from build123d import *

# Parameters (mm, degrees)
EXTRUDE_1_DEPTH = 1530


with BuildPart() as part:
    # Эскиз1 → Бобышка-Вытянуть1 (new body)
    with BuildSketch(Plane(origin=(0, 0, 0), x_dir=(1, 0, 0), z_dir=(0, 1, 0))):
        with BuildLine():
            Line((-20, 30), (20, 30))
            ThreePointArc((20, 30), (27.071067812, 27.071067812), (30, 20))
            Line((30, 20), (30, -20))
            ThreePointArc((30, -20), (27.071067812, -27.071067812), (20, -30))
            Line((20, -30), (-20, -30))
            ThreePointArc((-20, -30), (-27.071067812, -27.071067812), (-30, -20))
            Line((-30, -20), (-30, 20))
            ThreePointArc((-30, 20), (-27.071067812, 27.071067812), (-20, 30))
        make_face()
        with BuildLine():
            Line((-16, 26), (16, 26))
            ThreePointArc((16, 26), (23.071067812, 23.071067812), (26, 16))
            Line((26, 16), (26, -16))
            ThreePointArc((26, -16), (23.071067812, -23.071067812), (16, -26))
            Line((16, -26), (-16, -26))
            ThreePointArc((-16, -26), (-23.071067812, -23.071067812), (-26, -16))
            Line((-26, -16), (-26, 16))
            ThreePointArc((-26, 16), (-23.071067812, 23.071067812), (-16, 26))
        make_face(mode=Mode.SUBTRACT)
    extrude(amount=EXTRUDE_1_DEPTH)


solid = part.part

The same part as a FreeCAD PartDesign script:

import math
import FreeCAD as App
import Part
import Sketcher
from FreeCAD import Vector

doc = App.newDocument("Part")
params = doc.addObject("Spreadsheet::Sheet", "Params")
for row, (alias, value) in enumerate([
    ("sketch1_radius", "10 mm"),
    ("sketch1_width", "40 mm"),
    ("sketch1_width2", "32 mm"),
    ("pad1_length", "1530 mm"),
], start=1):
    params.set(f"A{row}", alias)
    params.set(f"B{row}", "=" + value)
    params.setAlias(f"B{row}", alias)

body = doc.addObject("PartDesign::Body", "Body")

# Sketch on XZ plane
sketch1 = body.newObject("Sketcher::SketchObject", "Sketch")
sketch1.AttachmentSupport = (doc.getObject("XZ_Plane"), [""])
sketch1.MapMode = "FlatFace"
sketch1.addGeometry(Part.LineSegment(Vector(20, -30, 0), Vector(-20, -30, 0)), False)
sketch1.addGeometry(Part.ArcOfCircle(Part.Circle(Vector(-20, -20, 0), Vector(0, 0, 1), 10), math.radians(180), math.radians(270)), False)
sketch1.addGeometry(Part.LineSegment(Vector(-30, -20, 0), Vector(-30, 20, 0)), False)
sketch1.addGeometry(Part.ArcOfCircle(Part.Circle(Vector(-20, 20, 0), Vector(0, 0, 1), 10), math.radians(90), math.radians(180)), False)
sketch1.addGeometry(Part.LineSegment(Vector(-20, 30, 0), Vector(20, 30, 0)), False)
sketch1.addGeometry(Part.ArcOfCircle(Part.Circle(Vector(20, 20, 0), Vector(0, 0, 1), 10), math.radians(0), math.radians(90)), False)
sketch1.addGeometry(Part.LineSegment(Vector(30, 20, 0), Vector(30, -20, 0)), False)
sketch1.addGeometry(Part.ArcOfCircle(Part.Circle(Vector(20, -20, 0), Vector(0, 0, 1), 10), math.radians(-90), math.radians(0)), False)
sketch1.addGeometry(Part.LineSegment(Vector(-16, -26, 0), Vector(16, -26, 0)), False)
sketch1.addGeometry(Part.ArcOfCircle(Part.Circle(Vector(16, -16, 0), Vector(0, 0, 1), 10), math.radians(-90), math.radians(0)), False)
sketch1.addGeometry(Part.LineSegment(Vector(26, -16, 0), Vector(26, 16, 0)), False)
sketch1.addGeometry(Part.ArcOfCircle(Part.Circle(Vector(16, 16, 0), Vector(0, 0, 1), 10), math.radians(0), math.radians(90)), False)
sketch1.addGeometry(Part.LineSegment(Vector(16, 26, 0), Vector(-16, 26, 0)), False)
sketch1.addGeometry(Part.ArcOfCircle(Part.Circle(Vector(-16, 16, 0), Vector(0, 0, 1), 10), math.radians(90), math.radians(180)), False)
sketch1.addGeometry(Part.LineSegment(Vector(-26, 16, 0), Vector(-26, -16, 0)), False)
sketch1.addGeometry(Part.ArcOfCircle(Part.Circle(Vector(-16, -16, 0), Vector(0, 0, 1), 10), math.radians(180), math.radians(270)), False)
sketch1.addConstraint(Sketcher.Constraint("Tangent", 0, 2, 1, 2))
sketch1.addConstraint(Sketcher.Constraint("Tangent", 1, 1, 2, 1))
sketch1.addConstraint(Sketcher.Constraint("Tangent", 2, 2, 3, 2))
sketch1.addConstraint(Sketcher.Constraint("Tangent", 3, 1, 4, 1))
sketch1.addConstraint(Sketcher.Constraint("Tangent", 4, 2, 5, 2))
sketch1.addConstraint(Sketcher.Constraint("Tangent", 5, 1, 6, 1))
sketch1.addConstraint(Sketcher.Constraint("Tangent", 6, 2, 7, 2))
sketch1.addConstraint(Sketcher.Constraint("Tangent", 7, 1, 0, 1))
sketch1.addConstraint(Sketcher.Constraint("Tangent", 8, 2, 9, 1))
sketch1.addConstraint(Sketcher.Constraint("Tangent", 9, 2, 10, 1))
sketch1.addConstraint(Sketcher.Constraint("Tangent", 10, 2, 11, 1))
sketch1.addConstraint(Sketcher.Constraint("Tangent", 11, 2, 12, 1))
sketch1.addConstraint(Sketcher.Constraint("Tangent", 12, 2, 13, 1))
sketch1.addConstraint(Sketcher.Constraint("Tangent", 13, 2, 14, 1))
sketch1.addConstraint(Sketcher.Constraint("Tangent", 14, 2, 15, 1))
sketch1.addConstraint(Sketcher.Constraint("Tangent", 15, 2, 8, 1))
sketch1.addConstraint(Sketcher.Constraint("Horizontal", 0))
sketch1.addConstraint(Sketcher.Constraint("Vertical", 2))
sketch1.addConstraint(Sketcher.Constraint("Horizontal", 4))
sketch1.addConstraint(Sketcher.Constraint("Vertical", 6))
sketch1.addConstraint(Sketcher.Constraint("Horizontal", 8))
sketch1.addConstraint(Sketcher.Constraint("Vertical", 10))
sketch1.addConstraint(Sketcher.Constraint("Horizontal", 12))
sketch1.addConstraint(Sketcher.Constraint("Vertical", 14))
sketch1.addConstraint(Sketcher.Constraint("Equal", 1, 3))
sketch1.addConstraint(Sketcher.Constraint("Equal", 3, 5))
sketch1.addConstraint(Sketcher.Constraint("Equal", 5, 7))
sketch1.addConstraint(Sketcher.Constraint("Equal", 7, 9))
sketch1.addConstraint(Sketcher.Constraint("Equal", 9, 11))
sketch1.addConstraint(Sketcher.Constraint("Equal", 11, 13))
sketch1.addConstraint(Sketcher.Constraint("Equal", 13, 15))
sketch1.addConstraint(Sketcher.Constraint("Symmetric", 1, 3, 5, 3, -1, 1))
sketch1.addConstraint(Sketcher.Constraint("Symmetric", 9, 3, 13, 3, -1, 1))
sketch1.addConstraint(Sketcher.Constraint("Equal", 4, 2))
sketch1.addConstraint(Sketcher.Constraint("Equal", 12, 10))
sketch1.addConstraint(Sketcher.Constraint("Radius", 1, 10.0))
sketch1.addConstraint(Sketcher.Constraint("DistanceX", 0, 2, 0, 1, 40.0))
sketch1.addConstraint(Sketcher.Constraint("DistanceX", 8, 1, 8, 2, 32.0))
sketch1.setExpression("Constraints[35]", "Params.sketch1_radius")
sketch1.setExpression("Constraints[36]", "Params.sketch1_width")
sketch1.setExpression("Constraints[37]", "Params.sketch1_width2")
pad1 = body.newObject("PartDesign::Pad", "Pad")
pad1.Profile = sketch1
pad1.setExpression("Length", "Params.pad1_length")
pad1.Reversed = True

doc.recompute()
